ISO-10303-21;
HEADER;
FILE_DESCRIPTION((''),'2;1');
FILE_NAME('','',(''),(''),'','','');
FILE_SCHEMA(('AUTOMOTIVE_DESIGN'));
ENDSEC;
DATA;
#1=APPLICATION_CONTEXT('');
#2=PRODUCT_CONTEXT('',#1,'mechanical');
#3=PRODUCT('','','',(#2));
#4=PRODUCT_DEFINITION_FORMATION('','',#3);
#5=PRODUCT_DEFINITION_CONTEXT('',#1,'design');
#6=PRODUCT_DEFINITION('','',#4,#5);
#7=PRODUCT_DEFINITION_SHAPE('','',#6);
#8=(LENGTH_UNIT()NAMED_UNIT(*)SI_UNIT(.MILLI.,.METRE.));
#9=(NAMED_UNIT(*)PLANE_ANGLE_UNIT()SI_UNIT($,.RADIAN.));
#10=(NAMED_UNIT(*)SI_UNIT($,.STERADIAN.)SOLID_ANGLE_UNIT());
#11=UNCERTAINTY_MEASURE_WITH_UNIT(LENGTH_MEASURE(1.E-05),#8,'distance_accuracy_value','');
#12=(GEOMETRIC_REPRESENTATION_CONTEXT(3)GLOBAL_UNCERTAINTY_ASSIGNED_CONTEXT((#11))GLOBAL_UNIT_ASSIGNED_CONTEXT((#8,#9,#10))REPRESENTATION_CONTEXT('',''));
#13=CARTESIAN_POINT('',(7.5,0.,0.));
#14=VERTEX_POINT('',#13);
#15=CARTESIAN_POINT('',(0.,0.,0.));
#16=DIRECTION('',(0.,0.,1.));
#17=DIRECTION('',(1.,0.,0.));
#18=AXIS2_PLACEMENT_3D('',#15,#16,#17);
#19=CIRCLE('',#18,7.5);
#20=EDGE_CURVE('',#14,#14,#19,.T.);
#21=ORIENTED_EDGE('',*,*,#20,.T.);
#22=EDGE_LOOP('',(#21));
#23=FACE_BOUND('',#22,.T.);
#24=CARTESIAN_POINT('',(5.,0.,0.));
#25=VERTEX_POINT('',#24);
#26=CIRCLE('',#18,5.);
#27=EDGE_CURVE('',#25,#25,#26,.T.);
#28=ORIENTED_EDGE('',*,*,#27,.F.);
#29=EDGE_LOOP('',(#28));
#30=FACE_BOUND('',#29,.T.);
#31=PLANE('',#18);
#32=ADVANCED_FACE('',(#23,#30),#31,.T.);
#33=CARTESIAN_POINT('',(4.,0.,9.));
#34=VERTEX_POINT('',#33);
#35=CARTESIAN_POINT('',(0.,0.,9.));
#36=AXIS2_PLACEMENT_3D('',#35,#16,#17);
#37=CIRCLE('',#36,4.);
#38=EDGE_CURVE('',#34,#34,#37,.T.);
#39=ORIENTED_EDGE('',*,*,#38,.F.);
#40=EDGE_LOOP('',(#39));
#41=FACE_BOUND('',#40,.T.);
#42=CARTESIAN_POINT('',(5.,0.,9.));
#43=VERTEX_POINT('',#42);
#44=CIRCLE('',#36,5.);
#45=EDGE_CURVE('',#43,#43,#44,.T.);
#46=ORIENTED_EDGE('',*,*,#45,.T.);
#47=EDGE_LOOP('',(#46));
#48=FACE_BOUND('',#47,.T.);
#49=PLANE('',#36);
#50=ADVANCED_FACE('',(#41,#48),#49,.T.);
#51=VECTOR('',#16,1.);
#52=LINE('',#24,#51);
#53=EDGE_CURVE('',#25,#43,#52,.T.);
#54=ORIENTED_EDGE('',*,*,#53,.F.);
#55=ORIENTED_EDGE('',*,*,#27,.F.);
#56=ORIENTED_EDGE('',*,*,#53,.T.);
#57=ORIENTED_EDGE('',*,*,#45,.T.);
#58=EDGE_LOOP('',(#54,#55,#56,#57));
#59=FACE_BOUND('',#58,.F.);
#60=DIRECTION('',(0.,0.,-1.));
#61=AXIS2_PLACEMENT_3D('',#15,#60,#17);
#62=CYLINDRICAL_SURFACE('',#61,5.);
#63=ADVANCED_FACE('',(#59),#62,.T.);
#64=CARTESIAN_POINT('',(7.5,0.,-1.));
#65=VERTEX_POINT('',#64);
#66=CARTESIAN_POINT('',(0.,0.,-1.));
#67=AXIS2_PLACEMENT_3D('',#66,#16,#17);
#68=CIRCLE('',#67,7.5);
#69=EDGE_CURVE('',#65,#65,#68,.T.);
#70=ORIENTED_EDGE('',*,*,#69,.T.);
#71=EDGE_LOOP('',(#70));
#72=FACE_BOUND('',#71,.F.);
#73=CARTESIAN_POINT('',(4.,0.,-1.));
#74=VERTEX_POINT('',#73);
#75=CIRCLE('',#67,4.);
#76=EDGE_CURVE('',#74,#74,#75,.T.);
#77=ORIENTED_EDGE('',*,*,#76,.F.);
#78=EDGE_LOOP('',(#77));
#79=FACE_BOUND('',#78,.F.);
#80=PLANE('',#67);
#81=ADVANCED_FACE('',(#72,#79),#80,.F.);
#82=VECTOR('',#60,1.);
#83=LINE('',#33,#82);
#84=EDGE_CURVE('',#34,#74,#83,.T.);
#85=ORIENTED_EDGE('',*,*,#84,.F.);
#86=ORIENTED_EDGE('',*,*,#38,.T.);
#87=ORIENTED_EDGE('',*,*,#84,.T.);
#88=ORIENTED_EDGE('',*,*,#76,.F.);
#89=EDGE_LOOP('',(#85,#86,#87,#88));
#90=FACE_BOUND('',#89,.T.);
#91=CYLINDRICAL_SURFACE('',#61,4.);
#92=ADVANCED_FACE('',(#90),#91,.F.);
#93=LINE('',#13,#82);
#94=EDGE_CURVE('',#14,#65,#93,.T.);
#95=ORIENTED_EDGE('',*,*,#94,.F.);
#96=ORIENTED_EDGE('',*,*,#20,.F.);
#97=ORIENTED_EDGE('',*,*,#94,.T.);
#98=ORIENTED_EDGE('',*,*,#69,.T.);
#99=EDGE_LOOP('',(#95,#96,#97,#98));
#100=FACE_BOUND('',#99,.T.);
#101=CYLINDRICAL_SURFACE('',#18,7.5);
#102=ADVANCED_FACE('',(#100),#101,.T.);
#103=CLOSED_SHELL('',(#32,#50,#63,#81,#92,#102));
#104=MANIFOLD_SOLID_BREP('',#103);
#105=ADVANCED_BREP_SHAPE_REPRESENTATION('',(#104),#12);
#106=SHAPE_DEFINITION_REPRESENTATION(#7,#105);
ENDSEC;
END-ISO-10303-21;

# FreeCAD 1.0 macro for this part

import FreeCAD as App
import Part
import Sketcher
Q = App.Units.Quantity

doc = App.newDocument("Part")
body = doc.addObject("PartDesign::Body", "Body")

sketch1 = doc.addObject("Sketcher::SketchObject", "Sketch")
body.addObject(sketch1)
sketch1.AttachmentSupport = (doc.XY_Plane, [""])
sketch1.MapMode = "FlatFace"
sketch1.addGeometry([
    Part.Circle(App.Vector(0, 0, 0), App.Vector(0, 0, 1), 5),
    Part.Circle(App.Vector(0, 0, 0), App.Vector(0, 0, 1), 4),
], False)
sketch1.addConstraint([
    Sketcher.Constraint("Coincident", 0, 3, -1, 1),
    Sketcher.Constraint("Coincident", 1, 3, -1, 1),
    Sketcher.Constraint("Diameter", 0, Q("10 mm")),
    Sketcher.Constraint("Diameter", 1, Q("8 mm")),
])
pad1 = doc.addObject("PartDesign::Pad", "Pad")
body.addObject(pad1)
pad1.Profile = sketch1
pad1.Length = 9

sketch2 = doc.addObject("Sketcher::SketchObject", "Sketch001")
body.addObject(sketch2)
sketch2.AttachmentSupport = (doc.XY_Plane, [""])
sketch2.MapMode = "FlatFace"
sketch2.addGeometry([
    Part.Circle(App.Vector(0, 0, 0), App.Vector(0, 0, 1), 7.5),
    Part.Circle(App.Vector(0, 0, 0), App.Vector(0, 0, 1), 4),
], False)
sketch2.addConstraint([
    Sketcher.Constraint("Coincident", 0, 3, -1, 1),
    Sketcher.Constraint("Coincident", 1, 3, -1, 1),
    Sketcher.Constraint("Diameter", 0, Q("15 mm")),
    Sketcher.Constraint("Diameter", 1, Q("8 mm")),
])
pad2 = doc.addObject("PartDesign::Pad", "Pad001")
body.addObject(pad2)
pad2.Profile = sketch2
pad2.Length = 1
pad2.Reversed = True

doc.recompute()
